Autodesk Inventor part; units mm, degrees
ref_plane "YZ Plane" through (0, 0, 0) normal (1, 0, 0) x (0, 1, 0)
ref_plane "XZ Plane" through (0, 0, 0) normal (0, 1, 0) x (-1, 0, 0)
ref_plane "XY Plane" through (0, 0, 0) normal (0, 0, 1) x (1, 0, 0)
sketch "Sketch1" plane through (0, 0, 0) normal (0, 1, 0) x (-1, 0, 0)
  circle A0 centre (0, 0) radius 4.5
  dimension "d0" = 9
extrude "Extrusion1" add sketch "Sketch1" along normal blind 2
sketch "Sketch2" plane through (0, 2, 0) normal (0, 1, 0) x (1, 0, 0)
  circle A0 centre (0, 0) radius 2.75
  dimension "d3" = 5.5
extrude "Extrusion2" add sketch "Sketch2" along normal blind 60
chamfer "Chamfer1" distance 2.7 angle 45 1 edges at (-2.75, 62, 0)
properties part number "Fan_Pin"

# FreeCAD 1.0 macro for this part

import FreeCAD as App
import Part
import Sketcher


def edges_at(feature, points):
    """Names of the edges that pass closest to the given points."""
    edges = feature.Shape.Edges
    near = lambda p: min(range(len(edges)), key=lambda i: edges[i].distToShape(Part.Vertex(*p))[0])
    return sorted({f"Edge{near(p) + 1}" for p in points})

doc = App.newDocument("Part")
body = doc.addObject("PartDesign::Body", "Body")

# Sketch on XZ plane
sketch1 = body.newObject("Sketcher::SketchObject", "Sketch")
sketch1.AttachmentSupport = (doc.getObject("XZ_Plane"), [""])
sketch1.MapMode = "FlatFace"
sketch1.addGeometry(Part.Circle(App.Vector(0, 0, 0), App.Vector(0, 0, 1), 4.5), False)
sketch1.addConstraint(Sketcher.Constraint("Coincident", 0, 3, -1, 1))
sketch1.addConstraint(Sketcher.Constraint("Diameter", 0, 9.0))
pad1 = body.newObject("PartDesign::Pad", "Pad")
pad1.Profile = sketch1
pad1.Length = 2
pad1.Reversed = True

# Sketch on XZ plane
sketch2 = body.newObject("Sketcher::SketchObject", "Sketch001")
sketch2.AttachmentSupport = (doc.getObject("XZ_Plane"), [""])
sketch2.MapMode = "FlatFace"
sketch2.AttachmentOffset = App.Placement(App.Vector(0, 0, -2), App.Rotation())
sketch2.addGeometry(Part.Circle(App.Vector(0, 0, 0), App.Vector(0, 0, 1), 2.8), False)
sketch2.addConstraint(Sketcher.Constraint("Coincident", 0, 3, -1, 1))
sketch2.addConstraint(Sketcher.Constraint("Diameter", 0, 5.5))
pad2 = body.newObject("PartDesign::Pad", "Pad001")
pad2.Profile = sketch2
pad2.Length = 60
pad2.Reversed = True
doc.recompute()

chamfer = body.newObject("PartDesign::Chamfer", "Chamfer")
chamfer.Base = (pad2, edges_at(pad2, [(-2.75, 62, 0)]))
chamfer.Size = 2.7

doc.recompute()
